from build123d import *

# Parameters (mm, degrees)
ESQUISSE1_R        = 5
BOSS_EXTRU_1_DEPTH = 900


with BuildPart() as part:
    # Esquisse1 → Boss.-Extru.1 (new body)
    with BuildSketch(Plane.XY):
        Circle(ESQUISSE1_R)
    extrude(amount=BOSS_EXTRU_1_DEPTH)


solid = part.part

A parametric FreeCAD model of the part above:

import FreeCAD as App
import Part
import Sketcher

doc = App.newDocument("Part")
body = doc.addObject("PartDesign::Body", "Body")

# Sketch on XY plane
sketch1 = body.newObject("Sketcher::SketchObject", "Sketch")
sketch1.AttachmentSupport = (doc.getObject("XY_Plane"), [""])
sketch1.MapMode = "FlatFace"
sketch1.addGeometry(Part.Circle(App.Vector(0, 0, 0), App.Vector(0, 0, 1), 5), False)
sketch1.addConstraint(Sketcher.Constraint("Coincident", 0, 3, -1, 1))
sketch1.addConstraint(Sketcher.Constraint("Diameter", 0, 10.0))
pad1 = body.newObject("PartDesign::Pad", "Pad")
pad1.Profile = sketch1
pad1.Length = 900

doc.recompute()
